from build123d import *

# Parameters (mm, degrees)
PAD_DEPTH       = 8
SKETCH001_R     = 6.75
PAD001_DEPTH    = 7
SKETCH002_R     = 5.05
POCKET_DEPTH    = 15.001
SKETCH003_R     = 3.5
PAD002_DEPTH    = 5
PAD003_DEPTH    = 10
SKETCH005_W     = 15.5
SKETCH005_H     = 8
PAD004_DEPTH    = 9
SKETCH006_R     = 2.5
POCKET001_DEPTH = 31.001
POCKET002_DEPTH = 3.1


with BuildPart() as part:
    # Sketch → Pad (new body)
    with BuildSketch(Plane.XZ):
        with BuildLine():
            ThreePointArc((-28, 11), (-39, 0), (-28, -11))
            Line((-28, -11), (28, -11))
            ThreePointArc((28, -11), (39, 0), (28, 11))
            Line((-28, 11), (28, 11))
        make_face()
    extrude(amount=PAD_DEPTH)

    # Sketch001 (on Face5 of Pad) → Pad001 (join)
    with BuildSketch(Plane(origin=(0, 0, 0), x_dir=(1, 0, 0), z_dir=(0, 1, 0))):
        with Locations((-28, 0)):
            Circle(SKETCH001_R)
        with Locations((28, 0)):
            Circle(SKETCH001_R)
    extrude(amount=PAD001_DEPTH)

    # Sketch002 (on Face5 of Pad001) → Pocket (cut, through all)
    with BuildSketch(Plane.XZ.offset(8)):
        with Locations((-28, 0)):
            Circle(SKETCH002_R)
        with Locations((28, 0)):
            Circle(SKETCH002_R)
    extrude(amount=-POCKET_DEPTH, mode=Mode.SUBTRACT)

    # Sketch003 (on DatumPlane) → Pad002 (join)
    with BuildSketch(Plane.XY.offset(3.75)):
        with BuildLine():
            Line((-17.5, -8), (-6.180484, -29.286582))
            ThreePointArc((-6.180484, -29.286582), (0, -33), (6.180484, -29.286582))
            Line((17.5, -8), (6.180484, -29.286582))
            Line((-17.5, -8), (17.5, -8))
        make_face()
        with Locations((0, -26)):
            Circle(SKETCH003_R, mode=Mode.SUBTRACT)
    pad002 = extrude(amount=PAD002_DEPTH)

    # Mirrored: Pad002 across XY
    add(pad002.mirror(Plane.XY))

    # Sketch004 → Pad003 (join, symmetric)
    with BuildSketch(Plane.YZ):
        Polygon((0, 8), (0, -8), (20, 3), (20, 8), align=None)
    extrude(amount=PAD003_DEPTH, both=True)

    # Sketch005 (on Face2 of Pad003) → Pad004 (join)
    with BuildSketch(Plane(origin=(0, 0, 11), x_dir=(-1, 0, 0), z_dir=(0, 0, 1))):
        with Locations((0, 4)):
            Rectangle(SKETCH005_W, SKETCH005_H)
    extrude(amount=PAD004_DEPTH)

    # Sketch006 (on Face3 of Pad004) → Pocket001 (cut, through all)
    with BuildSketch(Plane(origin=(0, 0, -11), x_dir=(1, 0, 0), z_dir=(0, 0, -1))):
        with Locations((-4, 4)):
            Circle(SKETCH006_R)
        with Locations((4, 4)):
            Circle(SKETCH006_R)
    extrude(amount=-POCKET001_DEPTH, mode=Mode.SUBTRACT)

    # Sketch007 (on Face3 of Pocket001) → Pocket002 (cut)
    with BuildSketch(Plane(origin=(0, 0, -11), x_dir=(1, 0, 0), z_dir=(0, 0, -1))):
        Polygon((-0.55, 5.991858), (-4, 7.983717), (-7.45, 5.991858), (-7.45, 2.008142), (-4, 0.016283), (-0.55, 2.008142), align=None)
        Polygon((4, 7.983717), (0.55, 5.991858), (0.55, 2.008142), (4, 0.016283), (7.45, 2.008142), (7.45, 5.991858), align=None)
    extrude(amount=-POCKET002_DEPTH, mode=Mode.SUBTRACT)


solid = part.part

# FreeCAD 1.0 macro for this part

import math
import FreeCAD as App
import Part
import Sketcher
from FreeCAD import Vector
Q = App.Units.Quantity

doc = App.newDocument("Part")
params = doc.addObject("Spreadsheet::Sheet", "Params")
for row, (alias, value) in enumerate([
    ("sketch1_radius", "11 mm"),
    ("sketch1_width", "56 mm"),
    ("pad1_length", "8 mm"),
    ("sketch2_diameter", "13.5 mm"),
    ("pad2_length", "7 mm"),
    ("sketch3_diameter", "10.1 mm"),
    ("sketch4_diameter", "7 mm"),
    ("sketch4_radius", "7 mm"),
    ("sketch4_width", "35 mm"),
    ("pad3_length", "5 mm"),
    ("sketch5_width", "20 mm"),
    ("sketch5_height", "16 mm"),
    ("sketch5_height2", "5 mm"),
    ("pad4_length", "20 mm"),
    ("sketch6_height", "8 mm"),
    ("sketch6_width", "15.5 mm"),
    ("pad5_length", "9 mm"),
    ("sketch7_diameter", "5 mm"),
    ("pocket3_length", "3.1 mm"),
], start=1):
    params.set(f"A{row}", alias)
    params.set(f"B{row}", "=" + value)
    params.setAlias(f"B{row}", alias)

body = doc.addObject("PartDesign::Body", "Body")

# Sketch on XZ plane
sketch1 = body.newObject("Sketcher::SketchObject", "Sketch")
sketch1.AttachmentSupport = (doc.getObject("XZ_Plane"), [""])
sketch1.MapMode = "FlatFace"
sketch1.addGeometry(Part.ArcOfCircle(Part.Circle(Vector(-28, 0, 0), Vector(0, 0, 1), 11), math.radians(90), math.radians(270)), False)
sketch1.addGeometry(Part.LineSegment(Vector(-28, -11, 0), Vector(28, -11, 0)), False)
sketch1.addGeometry(Part.ArcOfCircle(Part.Circle(Vector(28, 0, 0), Vector(0, 0, 1), 11), math.radians(-90), math.radians(90)), False)
sketch1.addGeometry(Part.LineSegment(Vector(28, 11, 0), Vector(-28, 11, 0)), False)
sketch1.addConstraint(Sketcher.Constraint("Tangent", 0, 2, 1, 1))
sketch1.addConstraint(Sketcher.Constraint("Tangent", 1, 2, 2, 1))
sketch1.addConstraint(Sketcher.Constraint("Tangent", 2, 2, 3, 1))
sketch1.addConstraint(Sketcher.Constraint("Tangent", 3, 2, 0, 1))
sketch1.addConstraint(Sketcher.Constraint("Horizontal", 1))
sketch1.addConstraint(Sketcher.Constraint("Horizontal", 3))
sketch1.addConstraint(Sketcher.Constraint("Symmetric", 0, 3, 2, 3, -1, 1))
sketch1.addConstraint(Sketcher.Constraint("Radius", 0, Q("11 mm")))
sketch1.addConstraint(Sketcher.Constraint("DistanceX", 1, 1, 1, 2, Q("56 mm")))
sketch1.setExpression("Constraints[7]", "Params.sketch1_radius")
sketch1.setExpression("Constraints[8]", "Params.sketch1_width")
pad1 = body.newObject("PartDesign::Pad", "Pad")
pad1.Profile = sketch1
pad1.setExpression("Length", "Params.pad1_length")

# Sketch on XZ plane
sketch2 = body.newObject("Sketcher::SketchObject", "Sketch001")
sketch2.AttachmentSupport = (doc.getObject("XZ_Plane"), [""])
sketch2.MapMode = "FlatFace"
sketch2.addGeometry(Part.Circle(Vector(-28, 0, 0), Vector(0, 0, 1), 7), False)
sketch2.addGeometry(Part.Circle(Vector(28, 0, 0), Vector(0, 0, 1), 7), False)
sketch2.addConstraint(Sketcher.Constraint("Equal", 0, 1))
sketch2.addConstraint(Sketcher.Constraint("Symmetric", 0, 3, 1, 3, -1, 1))
sketch2.addConstraint(Sketcher.Constraint("PointOnObject", 0, 3, -1))
sketch2.addConstraint(Sketcher.Constraint("Diameter", 0, Q("13.5 mm")))
sketch2.addConstraint(Sketcher.Constraint("DistanceX", 0, 3, -1, 1, Q("28 mm")))
sketch2.setExpression("Constraints[3]", "Params.sketch2_diameter")
pad2 = body.newObject("PartDesign::Pad", "Pad001")
pad2.Profile = sketch2
pad2.setExpression("Length", "Params.pad2_length")
pad2.Reversed = True

# Sketch on XZ plane
sketch3 = body.newObject("Sketcher::SketchObject", "Sketch002")
sketch3.AttachmentSupport = (doc.getObject("XZ_Plane"), [""])
sketch3.MapMode = "FlatFace"
sketch3.AttachmentOffset = App.Placement(Vector(0, 0, 8), App.Rotation())
sketch3.addGeometry(Part.Circle(Vector(-28, 0, 0), Vector(0, 0, 1), 5), False)
sketch3.addGeometry(Part.Circle(Vector(28, 0, 0), Vector(0, 0, 1), 5), False)
sketch3.addConstraint(Sketcher.Constraint("Equal", 0, 1))
sketch3.addConstraint(Sketcher.Constraint("Symmetric", 0, 3, 1, 3, -1, 1))
sketch3.addConstraint(Sketcher.Constraint("PointOnObject", 0, 3, -1))
sketch3.addConstraint(Sketcher.Constraint("Diameter", 0, Q("10.1 mm")))
sketch3.addConstraint(Sketcher.Constraint("DistanceX", 0, 3, -1, 1, Q("28 mm")))
sketch3.setExpression("Constraints[3]", "Params.sketch3_diameter")
pocket1 = body.newObject("PartDesign::Pocket", "Pocket")
pocket1.Profile = sketch3
pocket1.Type = "ThroughAll"

# Sketch on XY plane
sketch4 = body.newObject("Sketcher::SketchObject", "Sketch003")
sketch4.AttachmentSupport = (doc.getObject("XY_Plane"), [""])
sketch4.MapMode = "FlatFace"
sketch4.AttachmentOffset = App.Placement(Vector(0, 0, 3.75), App.Rotation())
sketch4.addGeometry(Part.LineSegment(Vector(-17.5, -8, 0), Vector(-6.2, -29.3, 0)), False)
sketch4.addGeometry(Part.ArcOfCircle(Part.Circle(Vector(0, -26, 0), Vector(0, 0, 1), 7), math.radians(-152), math.radians(-28)), False)
sketch4.addGeometry(Part.LineSegment(Vector(6.2, -29.3, 0), Vector(17.5, -8, 0)), False)
sketch4.addGeometry(Part.LineSegment(Vector(17.5, -8, 0), Vector(-17.5, -8, 0)), False)
sketch4.addGeometry(Part.Circle(Vector(0, -26, 0), Vector(0, 0, 1), 3.5), False)
sketch4.addConstraint(Sketcher.Constraint("Tangent", 0, 2, 1, 1))
sketch4.addConstraint(Sketcher.Constraint("Tangent", 1, 2, 2, 1))
sketch4.addConstraint(Sketcher.Constraint("Coincident", 2, 2, 3, 1))
sketch4.addConstraint(Sketcher.Constraint("Coincident", 3, 2, 0, 1))
sketch4.addConstraint(Sketcher.Constraint("Horizontal", 3))
sketch4.addConstraint(Sketcher.Constraint("Coincident", 4, 3, 1, 3))
sketch4.addConstraint(Sketcher.Constraint("Symmetric", 0, 2, 1, 2, -2))
sketch4.addConstraint(Sketcher.Constraint("Diameter", 4, Q("7 mm")))
sketch4.addConstraint(Sketcher.Constraint("Radius", 1, Q("7 mm")))
sketch4.addConstraint(Sketcher.Constraint("DistanceX", 3, 2, 3, 1, Q("35 mm")))
sketch4.addConstraint(Sketcher.Constraint("DistanceY", 1, 3, -1, 1, Q("26 mm")))
sketch4.addConstraint(Sketcher.Constraint("DistanceY", 2, 2, -1, 1, Q("8 mm")))
sketch4.setExpression("Constraints[7]", "Params.sketch4_diameter")
sketch4.setExpression("Constraints[8]", "Params.sketch4_radius")
sketch4.setExpression("Constraints[9]", "Params.sketch4_width")
pad3 = body.newObject("PartDesign::Pad", "Pad002")
pad3.Profile = sketch4
pad3.setExpression("Length", "Params.pad3_length")
doc.recompute()

mirrored = body.newObject("PartDesign::Mirrored", "Mirrored")
mirrored.Originals = [pad3]
mirrored.MirrorPlane = (doc.getObject("XY_Plane"), [""])
body.Tip = mirrored

# Sketch on YZ plane
sketch5 = body.newObject("Sketcher::SketchObject", "Sketch004")
sketch5.AttachmentSupport = (doc.getObject("YZ_Plane"), [""])
sketch5.MapMode = "FlatFace"
sketch5.addGeometry(Part.LineSegment(Vector(0, 8, 0), Vector(0, -8, 0)), False)
sketch5.addGeometry(Part.LineSegment(Vector(0, -8, 0), Vector(20, 3, 0)), False)
sketch5.addGeometry(Part.LineSegment(Vector(20, 3, 0), Vector(20, 8, 0)), False)
sketch5.addGeometry(Part.LineSegment(Vector(20, 8, 0), Vector(0, 8, 0)), False)
sketch5.addConstraint(Sketcher.Constraint("Coincident", 0, 2, 1, 1))
sketch5.addConstraint(Sketcher.Constraint("Coincident", 1, 2, 2, 1))
sketch5.addConstraint(Sketcher.Constraint("Coincident", 2, 2, 3, 1))
sketch5.addConstraint(Sketcher.Constraint("Coincident", 3, 2, 0, 1))
sketch5.addConstraint(Sketcher.Constraint("Vertical", 0))
sketch5.addConstraint(Sketcher.Constraint("Vertical", 2))
sketch5.addConstraint(Sketcher.Constraint("Horizontal", 3))
sketch5.addConstraint(Sketcher.Constraint("Symmetric", 0, 2, 3, 2, -1, 1))
sketch5.addConstraint(Sketcher.Constraint("DistanceX", 3, 2, 3, 1, Q("20 mm")))
sketch5.addConstraint(Sketcher.Constraint("DistanceY", 0, 2, 0, 1, Q("16 mm")))
sketch5.addConstraint(Sketcher.Constraint("DistanceY", 2, 1, 2, 2, Q("5 mm")))
sketch5.setExpression("Constraints[8]", "Params.sketch5_width")
sketch5.setExpression("Constraints[9]", "Params.sketch5_height")
sketch5.setExpression("Constraints[10]", "Params.sketch5_height2")
pad4 = body.newObject("PartDesign::Pad", "Pad003")
pad4.Profile = sketch5
pad4.setExpression("Length", "Params.pad4_length")
pad4.Midplane = True

# Sketch on XY plane
sketch6 = body.newObject("Sketcher::SketchObject", "Sketch005")
sketch6.AttachmentSupport = (doc.getObject("XY_Plane"), [""])
sketch6.MapMode = "FlatFace"
sketch6.AttachmentOffset = App.Placement(Vector(0, 0, 11), App.Rotation())
sketch6.addGeometry(Part.LineSegment(Vector(8, -8, 0), Vector(8, 0, 0)), False)
sketch6.addGeometry(Part.LineSegment(Vector(8, 0, 0), Vector(-8, 0, 0)), False)
sketch6.addGeometry(Part.LineSegment(Vector(-8, 0, 0), Vector(-8, -8, 0)), False)
sketch6.addGeometry(Part.LineSegment(Vector(-8, -8, 0), Vector(8, -8, 0)), False)
sketch6.addConstraint(Sketcher.Constraint("Coincident", 0, 2, 1, 1))
sketch6.addConstraint(Sketcher.Constraint("Coincident", 1, 2, 2, 1))
sketch6.addConstraint(Sketcher.Constraint("Coincident", 2, 2, 3, 1))
sketch6.addConstraint(Sketcher.Constraint("Coincident", 3, 2, 0, 1))
sketch6.addConstraint(Sketcher.Constraint("Vertical", 0))
sketch6.addConstraint(Sketcher.Constraint("Horizontal", 1))
sketch6.addConstraint(Sketcher.Constraint("Vertical", 2))
sketch6.addConstraint(Sketcher.Constraint("Horizontal", 3))
sketch6.addConstraint(Sketcher.Constraint("Symmetric", 0, 2, 1, 2, -1, 1))
sketch6.addConstraint(Sketcher.Constraint("DistanceY", 0, 1, 0, 2, Q("8 mm")))
sketch6.addConstraint(Sketcher.Constraint("DistanceX", 1, 2, 1, 1, Q("15.5 mm")))
sketch6.setExpression("Constraints[9]", "Params.sketch6_height")
sketch6.setExpression("Constraints[10]", "Params.sketch6_width")
pad5 = body.newObject("PartDesign::Pad", "Pad004")
pad5.Profile = sketch6
pad5.setExpression("Length", "Params.pad5_length")

# Sketch on XY plane
sketch7 = body.newObject("Sketcher::SketchObject", "Sketch006")
sketch7.AttachmentSupport = (doc.getObject("XY_Plane"), [""])
sketch7.MapMode = "FlatFace"
sketch7.AttachmentOffset = App.Placement(Vector(0, 0, -11), App.Rotation())
sketch7.addGeometry(Part.Circle(Vector(-4, -4, 0), Vector(0, 0, 1), 2.5), False)
sketch7.addGeometry(Part.Circle(Vector(4, -4, 0), Vector(0, 0, 1), 2.5), False)
sketch7.addConstraint(Sketcher.Constraint("Equal", 0, 1))
sketch7.addConstraint(Sketcher.Constraint("Symmetric", 0, 3, 1, 3, -2))
sketch7.addConstraint(Sketcher.Constraint("Diameter", 0, Q("5 mm")))
sketch7.addConstraint(Sketcher.Constraint("DistanceX", 0, 3, -1, 1, Q("4 mm")))
sketch7.addConstraint(Sketcher.Constraint("DistanceY", 0, 3, -1, 1, Q("4 mm")))
sketch7.setExpression("Constraints[2]", "Params.sketch7_diameter")
pocket2 = body.newObject("PartDesign::Pocket", "Pocket001")
pocket2.Profile = sketch7
pocket2.Type = "ThroughAll"
pocket2.Reversed = True

# Sketch on XY plane
sketch8 = body.newObject("Sketcher::SketchObject", "Sketch007")
sketch8.AttachmentSupport = (doc.getObject("XY_Plane"), [""])
sketch8.MapMode = "FlatFace"
sketch8.AttachmentOffset = App.Placement(Vector(0, 0, -11), App.Rotation())
sketch8.addGeometry(Part.LineSegment(Vector(-0.6, -6, 0), Vector(-4, -8, 0)), False)
sketch8.addGeometry(Part.LineSegment(Vector(-4, -8, 0), Vector(-7.5, -6, 0)), False)
sketch8.addGeometry(Part.LineSegment(Vector(-7.5, -6, 0), Vector(-7.5, -2, 0)), False)
sketch8.addGeometry(Part.LineSegment(Vector(-7.5, -2, 0), Vector(-4, 0, 0)), False)
sketch8.addGeometry(Part.LineSegment(Vector(-4, 0, 0), Vector(-0.6, -2, 0)), False)
sketch8.addGeometry(Part.LineSegment(Vector(-0.6, -2, 0), Vector(-0.6, -6, 0)), False)
sketch8.addGeometry(Part.LineSegment(Vector(4, -8, 0), Vector(0.6, -6, 0)), False)
sketch8.addGeometry(Part.LineSegment(Vector(0.6, -6, 0), Vector(0.6, -2, 0)), False)
sketch8.addGeometry(Part.LineSegment(Vector(0.6, -2, 0), Vector(4, 0, 0)), False)
sketch8.addGeometry(Part.LineSegment(Vector(4, 0, 0), Vector(7.5, -2, 0)), False)
sketch8.addGeometry(Part.LineSegment(Vector(7.5, -2, 0), Vector(7.5, -6, 0)), False)
sketch8.addGeometry(Part.LineSegment(Vector(7.5, -6, 0), Vector(4, -8, 0)), False)
sketch8.addConstraint(Sketcher.Constraint("Coincident", 0, 2, 1, 1))
sketch8.addConstraint(Sketcher.Constraint("Coincident", 1, 2, 2, 1))
sketch8.addConstraint(Sketcher.Constraint("Coincident", 2, 2, 3, 1))
sketch8.addConstraint(Sketcher.Constraint("Coincident", 3, 2, 4, 1))
sketch8.addConstraint(Sketcher.Constraint("Coincident", 4, 2, 5, 1))
sketch8.addConstraint(Sketcher.Constraint("Coincident", 5, 2, 0, 1))
sketch8.addConstraint(Sketcher.Constraint("Coincident", 6, 2, 7, 1))
sketch8.addConstraint(Sketcher.Constraint("Coincident", 7, 2, 8, 1))
sketch8.addConstraint(Sketcher.Constraint("Coincident", 8, 2, 9, 1))
sketch8.addConstraint(Sketcher.Constraint("Coincident", 9, 2, 10, 1))
sketch8.addConstraint(Sketcher.Constraint("Coincident", 10, 2, 11, 1))
sketch8.addConstraint(Sketcher.Constraint("Coincident", 11, 2, 6, 1))
sketch8.addConstraint(Sketcher.Constraint("Vertical", 2))
sketch8.addConstraint(Sketcher.Constraint("Vertical", 5))
sketch8.addConstraint(Sketcher.Constraint("Vertical", 7))
sketch8.addConstraint(Sketcher.Constraint("Vertical", 10))
sketch8.addConstraint(Sketcher.Constraint("Symmetric", 5, 2, 6, 2, -2))
sketch8.addConstraint(Sketcher.Constraint("Symmetric", 3, 2, 8, 2, -2))
sketch8.addConstraint(Sketcher.Constraint("Symmetric", 2, 2, 9, 2, -2))
sketch8.addConstraint(Sketcher.Constraint("Symmetric", 0, 2, 11, 2, -2))
sketch8.addConstraint(Sketcher.Constraint("Parallel", 0, 3))
sketch8.addConstraint(Sketcher.Constraint("Parallel", 1, 4))
sketch8.addConstraint(Sketcher.Constraint("Parallel", 4, 6))
sketch8.addConstraint(Sketcher.Constraint("Parallel", 3, 8))
sketch8.addConstraint(Sketcher.Constraint("Parallel", 8, 11))
sketch8.addConstraint(Sketcher.Constraint("Horizontal", 2, 2, 4, 2))
sketch8.addConstraint(Sketcher.Constraint("Horizontal", 1, 2, 5, 2))
sketch8.addConstraint(Sketcher.Constraint("Angle", 0, Q("-149.999993 deg")))
sketch8.addConstraint(Sketcher.Constraint("DistanceX", 0, 2, -1, 1, Q("4 mm")))
sketch8.addConstraint(Sketcher.Constraint("DistanceX", 2, 2, 4, 2, Q("6.9 mm")))
sketch8.addConstraint(Sketcher.Constraint("DistanceY", 2, 1, 2, 2, Q("3.983716 mm")))
sketch8.addConstraint(Sketcher.Constraint("DistanceY", 2, 2, -1, 1, Q("2.008142 mm")))
pocket3 = body.newObject("PartDesign::Pocket", "Pocket002")
pocket3.Profile = sketch8
pocket3.setExpression("Length", "Params.pocket3_length")
pocket3.Reversed = True

doc.recompute()
